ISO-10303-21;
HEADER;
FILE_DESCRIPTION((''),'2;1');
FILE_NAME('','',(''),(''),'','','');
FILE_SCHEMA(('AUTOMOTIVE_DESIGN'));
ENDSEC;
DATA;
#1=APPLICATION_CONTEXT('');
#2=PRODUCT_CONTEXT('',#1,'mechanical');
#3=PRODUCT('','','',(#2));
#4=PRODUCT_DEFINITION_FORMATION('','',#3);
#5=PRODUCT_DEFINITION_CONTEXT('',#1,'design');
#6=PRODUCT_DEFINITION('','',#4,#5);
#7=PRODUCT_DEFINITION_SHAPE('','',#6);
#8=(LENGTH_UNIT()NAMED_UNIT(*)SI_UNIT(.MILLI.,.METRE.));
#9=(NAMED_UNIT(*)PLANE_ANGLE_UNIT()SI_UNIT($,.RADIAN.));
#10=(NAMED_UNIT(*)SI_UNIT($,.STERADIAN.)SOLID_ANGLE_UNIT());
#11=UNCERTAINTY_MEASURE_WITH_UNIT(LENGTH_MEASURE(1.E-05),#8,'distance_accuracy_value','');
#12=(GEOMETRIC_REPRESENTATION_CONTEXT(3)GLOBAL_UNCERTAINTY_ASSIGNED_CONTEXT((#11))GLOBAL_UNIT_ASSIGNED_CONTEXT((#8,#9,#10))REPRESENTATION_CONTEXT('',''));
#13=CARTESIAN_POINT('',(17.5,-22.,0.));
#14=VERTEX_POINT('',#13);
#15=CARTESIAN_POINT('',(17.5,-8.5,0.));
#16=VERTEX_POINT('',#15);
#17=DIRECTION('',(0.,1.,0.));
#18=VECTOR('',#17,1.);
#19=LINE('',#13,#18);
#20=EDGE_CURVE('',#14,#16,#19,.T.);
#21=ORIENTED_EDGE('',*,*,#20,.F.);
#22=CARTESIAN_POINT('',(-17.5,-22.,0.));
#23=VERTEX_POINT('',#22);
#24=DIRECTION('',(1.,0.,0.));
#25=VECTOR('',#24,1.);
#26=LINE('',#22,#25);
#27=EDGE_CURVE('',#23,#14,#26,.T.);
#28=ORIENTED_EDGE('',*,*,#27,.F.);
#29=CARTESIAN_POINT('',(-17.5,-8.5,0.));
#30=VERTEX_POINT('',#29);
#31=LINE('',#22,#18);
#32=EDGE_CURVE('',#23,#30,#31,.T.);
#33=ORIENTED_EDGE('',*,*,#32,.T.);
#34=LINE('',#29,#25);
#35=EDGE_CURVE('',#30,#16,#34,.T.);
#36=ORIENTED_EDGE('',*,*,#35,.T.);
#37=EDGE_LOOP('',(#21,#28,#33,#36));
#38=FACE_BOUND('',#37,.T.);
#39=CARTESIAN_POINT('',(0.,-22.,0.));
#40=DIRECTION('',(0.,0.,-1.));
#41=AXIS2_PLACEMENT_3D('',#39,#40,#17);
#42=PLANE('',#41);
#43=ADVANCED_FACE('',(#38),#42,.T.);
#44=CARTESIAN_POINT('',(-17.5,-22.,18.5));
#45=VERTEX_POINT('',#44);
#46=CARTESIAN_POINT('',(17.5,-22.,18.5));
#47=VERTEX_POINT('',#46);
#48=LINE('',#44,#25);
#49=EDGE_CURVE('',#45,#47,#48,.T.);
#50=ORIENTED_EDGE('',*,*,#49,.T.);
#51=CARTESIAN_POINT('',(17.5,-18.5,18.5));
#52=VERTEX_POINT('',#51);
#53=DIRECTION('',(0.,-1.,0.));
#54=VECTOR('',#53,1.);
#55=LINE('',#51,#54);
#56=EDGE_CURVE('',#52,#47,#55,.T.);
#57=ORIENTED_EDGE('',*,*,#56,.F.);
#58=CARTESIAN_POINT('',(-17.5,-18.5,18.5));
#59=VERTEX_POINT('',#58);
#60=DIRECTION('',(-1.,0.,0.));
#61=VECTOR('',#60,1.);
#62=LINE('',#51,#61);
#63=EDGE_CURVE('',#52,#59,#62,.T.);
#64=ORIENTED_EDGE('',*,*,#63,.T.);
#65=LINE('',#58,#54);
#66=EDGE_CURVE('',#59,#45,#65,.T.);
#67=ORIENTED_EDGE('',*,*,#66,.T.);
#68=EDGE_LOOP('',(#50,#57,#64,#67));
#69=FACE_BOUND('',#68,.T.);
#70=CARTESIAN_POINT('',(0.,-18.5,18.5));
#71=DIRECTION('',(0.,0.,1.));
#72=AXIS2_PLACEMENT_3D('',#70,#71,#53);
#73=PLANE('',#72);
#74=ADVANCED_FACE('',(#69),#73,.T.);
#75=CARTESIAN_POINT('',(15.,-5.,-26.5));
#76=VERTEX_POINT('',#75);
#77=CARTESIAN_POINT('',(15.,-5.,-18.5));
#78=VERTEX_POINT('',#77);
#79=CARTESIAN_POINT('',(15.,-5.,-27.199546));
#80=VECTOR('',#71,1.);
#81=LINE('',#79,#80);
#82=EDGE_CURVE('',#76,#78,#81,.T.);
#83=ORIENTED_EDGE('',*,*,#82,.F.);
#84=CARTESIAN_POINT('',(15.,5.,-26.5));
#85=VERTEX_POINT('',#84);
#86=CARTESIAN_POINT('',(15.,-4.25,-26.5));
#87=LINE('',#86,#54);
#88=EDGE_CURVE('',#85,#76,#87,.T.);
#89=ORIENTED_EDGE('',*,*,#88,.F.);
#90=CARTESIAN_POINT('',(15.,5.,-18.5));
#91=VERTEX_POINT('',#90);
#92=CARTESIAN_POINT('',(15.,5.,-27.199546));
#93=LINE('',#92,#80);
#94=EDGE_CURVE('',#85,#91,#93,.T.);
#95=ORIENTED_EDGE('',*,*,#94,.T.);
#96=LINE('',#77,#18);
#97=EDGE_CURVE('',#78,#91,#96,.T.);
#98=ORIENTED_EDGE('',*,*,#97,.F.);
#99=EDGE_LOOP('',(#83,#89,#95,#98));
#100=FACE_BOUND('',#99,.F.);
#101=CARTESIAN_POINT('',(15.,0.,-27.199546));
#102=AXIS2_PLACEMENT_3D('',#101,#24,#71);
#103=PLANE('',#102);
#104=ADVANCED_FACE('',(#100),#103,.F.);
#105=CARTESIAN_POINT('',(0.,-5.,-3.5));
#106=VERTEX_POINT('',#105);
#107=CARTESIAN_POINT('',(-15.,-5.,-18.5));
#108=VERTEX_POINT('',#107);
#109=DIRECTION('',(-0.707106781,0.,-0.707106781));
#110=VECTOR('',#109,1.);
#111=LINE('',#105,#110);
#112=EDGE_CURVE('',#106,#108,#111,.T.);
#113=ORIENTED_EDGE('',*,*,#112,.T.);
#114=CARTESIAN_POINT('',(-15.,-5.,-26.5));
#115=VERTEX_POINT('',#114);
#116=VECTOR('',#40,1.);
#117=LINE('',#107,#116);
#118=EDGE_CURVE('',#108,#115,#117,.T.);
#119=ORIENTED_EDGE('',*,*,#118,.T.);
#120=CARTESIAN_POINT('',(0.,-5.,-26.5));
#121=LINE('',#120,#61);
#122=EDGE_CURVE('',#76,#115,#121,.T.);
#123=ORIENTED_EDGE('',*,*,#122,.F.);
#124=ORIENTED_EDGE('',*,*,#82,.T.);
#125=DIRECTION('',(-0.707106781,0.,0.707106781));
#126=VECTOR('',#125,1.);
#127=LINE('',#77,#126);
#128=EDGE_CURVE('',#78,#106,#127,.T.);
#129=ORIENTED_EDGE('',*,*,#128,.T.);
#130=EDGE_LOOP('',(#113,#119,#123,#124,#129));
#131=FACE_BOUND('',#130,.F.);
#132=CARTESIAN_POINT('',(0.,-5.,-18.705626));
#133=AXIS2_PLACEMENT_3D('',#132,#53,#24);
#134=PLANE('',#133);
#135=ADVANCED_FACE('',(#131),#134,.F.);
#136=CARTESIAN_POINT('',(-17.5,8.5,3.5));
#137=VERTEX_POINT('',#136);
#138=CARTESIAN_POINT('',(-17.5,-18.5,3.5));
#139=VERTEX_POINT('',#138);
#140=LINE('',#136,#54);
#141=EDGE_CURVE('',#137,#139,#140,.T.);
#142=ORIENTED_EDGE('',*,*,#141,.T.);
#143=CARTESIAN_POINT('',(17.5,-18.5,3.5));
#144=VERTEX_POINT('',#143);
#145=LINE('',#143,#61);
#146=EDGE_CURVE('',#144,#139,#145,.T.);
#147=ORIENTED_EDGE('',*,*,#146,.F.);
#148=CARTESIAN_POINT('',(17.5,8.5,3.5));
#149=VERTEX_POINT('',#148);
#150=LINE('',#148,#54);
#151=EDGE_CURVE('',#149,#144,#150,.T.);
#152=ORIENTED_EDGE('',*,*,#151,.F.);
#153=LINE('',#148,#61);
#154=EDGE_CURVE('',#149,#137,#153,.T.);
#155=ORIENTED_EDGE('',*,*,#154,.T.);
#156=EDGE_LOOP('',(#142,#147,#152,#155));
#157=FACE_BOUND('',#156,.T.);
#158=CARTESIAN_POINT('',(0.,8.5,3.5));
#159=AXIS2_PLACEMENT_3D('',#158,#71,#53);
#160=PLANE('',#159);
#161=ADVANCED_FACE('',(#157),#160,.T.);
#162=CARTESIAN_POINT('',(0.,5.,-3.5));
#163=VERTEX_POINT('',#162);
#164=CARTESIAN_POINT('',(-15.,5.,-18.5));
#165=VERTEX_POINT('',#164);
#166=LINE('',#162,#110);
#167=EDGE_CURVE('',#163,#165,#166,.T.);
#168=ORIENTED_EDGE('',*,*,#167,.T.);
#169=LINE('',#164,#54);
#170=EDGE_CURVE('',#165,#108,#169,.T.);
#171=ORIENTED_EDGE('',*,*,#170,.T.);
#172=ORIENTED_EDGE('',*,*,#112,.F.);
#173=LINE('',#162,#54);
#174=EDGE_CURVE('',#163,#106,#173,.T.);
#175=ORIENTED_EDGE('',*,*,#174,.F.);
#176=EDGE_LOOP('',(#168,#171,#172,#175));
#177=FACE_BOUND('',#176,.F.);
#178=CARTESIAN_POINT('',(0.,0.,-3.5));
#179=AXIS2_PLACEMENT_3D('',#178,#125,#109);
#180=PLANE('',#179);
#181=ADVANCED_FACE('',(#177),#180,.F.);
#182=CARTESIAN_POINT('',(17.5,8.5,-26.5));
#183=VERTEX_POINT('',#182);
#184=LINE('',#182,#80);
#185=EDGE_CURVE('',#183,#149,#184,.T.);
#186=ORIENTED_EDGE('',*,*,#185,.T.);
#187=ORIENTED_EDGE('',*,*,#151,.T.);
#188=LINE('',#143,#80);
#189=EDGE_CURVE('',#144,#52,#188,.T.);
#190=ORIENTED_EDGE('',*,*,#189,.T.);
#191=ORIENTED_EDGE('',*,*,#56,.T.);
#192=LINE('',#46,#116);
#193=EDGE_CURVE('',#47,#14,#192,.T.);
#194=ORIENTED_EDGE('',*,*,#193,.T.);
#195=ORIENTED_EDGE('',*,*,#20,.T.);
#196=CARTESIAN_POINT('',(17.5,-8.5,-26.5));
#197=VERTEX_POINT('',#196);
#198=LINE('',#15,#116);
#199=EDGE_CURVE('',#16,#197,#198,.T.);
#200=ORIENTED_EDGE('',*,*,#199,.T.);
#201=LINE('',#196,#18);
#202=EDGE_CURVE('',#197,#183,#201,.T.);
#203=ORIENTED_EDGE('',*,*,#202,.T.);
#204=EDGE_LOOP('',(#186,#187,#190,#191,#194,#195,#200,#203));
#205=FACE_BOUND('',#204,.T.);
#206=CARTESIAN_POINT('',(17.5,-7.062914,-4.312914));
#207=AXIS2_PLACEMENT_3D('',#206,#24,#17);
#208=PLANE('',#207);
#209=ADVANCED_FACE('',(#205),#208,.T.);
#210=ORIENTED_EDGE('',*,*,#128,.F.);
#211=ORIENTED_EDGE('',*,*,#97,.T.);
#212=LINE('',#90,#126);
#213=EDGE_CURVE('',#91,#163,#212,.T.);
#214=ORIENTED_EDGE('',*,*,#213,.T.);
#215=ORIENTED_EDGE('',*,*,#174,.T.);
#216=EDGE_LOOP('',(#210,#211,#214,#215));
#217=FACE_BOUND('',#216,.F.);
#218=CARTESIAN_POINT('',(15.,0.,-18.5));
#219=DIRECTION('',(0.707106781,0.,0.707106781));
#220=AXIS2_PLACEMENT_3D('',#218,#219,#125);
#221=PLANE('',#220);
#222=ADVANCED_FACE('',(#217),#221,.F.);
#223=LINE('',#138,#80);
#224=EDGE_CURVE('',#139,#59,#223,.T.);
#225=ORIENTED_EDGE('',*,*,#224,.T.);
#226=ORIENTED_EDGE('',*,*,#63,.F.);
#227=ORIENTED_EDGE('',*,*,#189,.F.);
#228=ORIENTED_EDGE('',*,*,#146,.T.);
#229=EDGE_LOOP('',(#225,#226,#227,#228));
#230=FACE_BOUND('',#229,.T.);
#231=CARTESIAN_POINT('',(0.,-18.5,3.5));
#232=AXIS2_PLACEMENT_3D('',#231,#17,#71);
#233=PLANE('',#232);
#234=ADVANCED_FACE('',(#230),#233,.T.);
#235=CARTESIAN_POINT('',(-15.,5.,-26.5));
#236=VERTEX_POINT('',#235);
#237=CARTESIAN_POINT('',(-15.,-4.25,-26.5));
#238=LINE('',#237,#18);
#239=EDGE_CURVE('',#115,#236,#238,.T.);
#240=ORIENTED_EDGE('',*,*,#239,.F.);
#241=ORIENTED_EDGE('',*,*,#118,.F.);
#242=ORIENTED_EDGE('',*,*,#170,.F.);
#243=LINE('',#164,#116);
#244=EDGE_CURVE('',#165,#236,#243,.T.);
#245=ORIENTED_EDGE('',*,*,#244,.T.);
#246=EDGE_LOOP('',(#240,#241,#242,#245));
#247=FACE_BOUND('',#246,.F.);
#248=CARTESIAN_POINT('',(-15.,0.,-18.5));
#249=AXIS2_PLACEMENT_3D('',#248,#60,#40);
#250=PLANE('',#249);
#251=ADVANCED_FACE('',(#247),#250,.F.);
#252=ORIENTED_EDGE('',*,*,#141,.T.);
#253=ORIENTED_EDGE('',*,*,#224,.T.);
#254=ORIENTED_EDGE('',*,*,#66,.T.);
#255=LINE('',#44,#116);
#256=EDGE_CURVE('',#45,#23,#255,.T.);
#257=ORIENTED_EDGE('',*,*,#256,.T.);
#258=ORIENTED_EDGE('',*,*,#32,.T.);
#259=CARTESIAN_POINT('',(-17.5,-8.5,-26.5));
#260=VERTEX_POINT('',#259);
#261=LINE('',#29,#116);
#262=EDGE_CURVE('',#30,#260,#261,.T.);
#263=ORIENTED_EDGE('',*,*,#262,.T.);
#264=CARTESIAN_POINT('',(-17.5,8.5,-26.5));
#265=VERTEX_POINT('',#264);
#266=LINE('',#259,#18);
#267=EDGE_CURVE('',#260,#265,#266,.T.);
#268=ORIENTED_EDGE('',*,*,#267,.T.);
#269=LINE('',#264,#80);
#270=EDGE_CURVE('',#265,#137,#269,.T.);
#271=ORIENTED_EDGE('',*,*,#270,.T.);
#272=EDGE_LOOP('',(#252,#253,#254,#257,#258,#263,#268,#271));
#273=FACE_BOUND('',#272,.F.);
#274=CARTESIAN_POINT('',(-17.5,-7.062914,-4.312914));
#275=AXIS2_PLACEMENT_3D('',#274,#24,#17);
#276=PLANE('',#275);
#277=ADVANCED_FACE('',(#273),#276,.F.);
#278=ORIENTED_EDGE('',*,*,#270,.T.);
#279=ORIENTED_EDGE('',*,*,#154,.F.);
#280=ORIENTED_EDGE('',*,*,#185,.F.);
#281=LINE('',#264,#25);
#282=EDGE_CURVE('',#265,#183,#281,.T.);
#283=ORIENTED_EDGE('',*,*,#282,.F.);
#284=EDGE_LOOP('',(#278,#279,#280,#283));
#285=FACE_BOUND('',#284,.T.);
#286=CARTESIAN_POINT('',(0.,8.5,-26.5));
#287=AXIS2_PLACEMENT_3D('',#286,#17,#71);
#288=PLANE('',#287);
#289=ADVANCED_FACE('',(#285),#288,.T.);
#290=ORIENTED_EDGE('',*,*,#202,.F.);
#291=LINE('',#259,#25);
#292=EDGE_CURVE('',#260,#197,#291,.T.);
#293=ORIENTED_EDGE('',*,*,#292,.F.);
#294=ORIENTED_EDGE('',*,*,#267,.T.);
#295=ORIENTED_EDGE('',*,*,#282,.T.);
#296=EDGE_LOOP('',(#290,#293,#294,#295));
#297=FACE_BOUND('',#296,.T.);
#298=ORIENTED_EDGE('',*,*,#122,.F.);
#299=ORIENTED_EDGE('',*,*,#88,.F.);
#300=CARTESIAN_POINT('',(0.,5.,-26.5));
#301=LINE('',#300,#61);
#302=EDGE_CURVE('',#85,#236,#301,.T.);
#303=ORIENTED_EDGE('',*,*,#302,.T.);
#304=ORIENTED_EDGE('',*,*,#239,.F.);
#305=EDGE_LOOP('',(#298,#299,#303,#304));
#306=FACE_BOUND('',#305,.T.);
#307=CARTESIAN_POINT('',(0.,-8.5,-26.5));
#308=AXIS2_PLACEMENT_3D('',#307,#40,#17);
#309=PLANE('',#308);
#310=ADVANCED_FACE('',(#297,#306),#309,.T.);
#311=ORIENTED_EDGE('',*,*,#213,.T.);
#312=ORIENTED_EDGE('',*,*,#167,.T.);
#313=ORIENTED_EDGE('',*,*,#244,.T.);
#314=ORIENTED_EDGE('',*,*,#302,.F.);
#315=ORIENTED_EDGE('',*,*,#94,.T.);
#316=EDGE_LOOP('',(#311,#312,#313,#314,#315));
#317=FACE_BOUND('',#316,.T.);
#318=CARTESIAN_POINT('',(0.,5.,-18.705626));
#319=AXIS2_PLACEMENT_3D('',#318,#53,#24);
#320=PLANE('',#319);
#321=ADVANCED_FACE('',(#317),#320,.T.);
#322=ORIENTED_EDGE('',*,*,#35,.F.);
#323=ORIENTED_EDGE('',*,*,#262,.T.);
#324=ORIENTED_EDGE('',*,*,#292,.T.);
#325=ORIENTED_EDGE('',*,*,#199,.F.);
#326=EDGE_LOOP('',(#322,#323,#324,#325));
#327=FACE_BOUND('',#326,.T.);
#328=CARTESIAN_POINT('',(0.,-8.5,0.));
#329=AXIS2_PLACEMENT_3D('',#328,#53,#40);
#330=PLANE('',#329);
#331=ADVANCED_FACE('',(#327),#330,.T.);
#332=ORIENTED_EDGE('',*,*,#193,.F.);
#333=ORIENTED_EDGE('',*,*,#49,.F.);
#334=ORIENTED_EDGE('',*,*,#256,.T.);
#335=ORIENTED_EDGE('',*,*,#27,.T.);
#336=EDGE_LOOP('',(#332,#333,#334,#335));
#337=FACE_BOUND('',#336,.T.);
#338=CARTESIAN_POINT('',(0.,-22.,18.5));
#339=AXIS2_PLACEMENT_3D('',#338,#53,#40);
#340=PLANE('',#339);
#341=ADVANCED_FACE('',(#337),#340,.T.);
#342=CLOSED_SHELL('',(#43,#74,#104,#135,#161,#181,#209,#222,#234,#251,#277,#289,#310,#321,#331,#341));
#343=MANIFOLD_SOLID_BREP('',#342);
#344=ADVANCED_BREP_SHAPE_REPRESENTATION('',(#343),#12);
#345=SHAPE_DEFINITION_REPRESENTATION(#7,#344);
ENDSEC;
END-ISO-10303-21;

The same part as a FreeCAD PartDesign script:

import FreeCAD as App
import Part
import Sketcher

V = App.Vector
Q = App.Units.Quantity

doc = App.newDocument("Part")
params = doc.addObject("Spreadsheet::Sheet", "Params")
for row, (alias, value) in enumerate([
    ("sketch1_width", "17 mm"),
    ("sketch1_width2", "27 mm"),
    ("sketch1_height", "30 mm"),
    ("sketch1_height2", "15 mm"),
    ("sketch1_width3", "3.5 mm"),
    ("pad1_length", "35 mm"),
    ("sketch2_width", "30 mm"),
    ("pocket1_length", "10 mm"),
], start=1):
    params.set(f"A{row}", alias)
    params.set(f"B{row}", "=" + value)
    params.setAlias(f"B{row}", alias)

body = doc.addObject("PartDesign::Body", "Body")

sketch1 = doc.addObject("Sketcher::SketchObject", "Sketch")
body.addObject(sketch1)
sketch1.AttachmentSupport = (doc.YZ_Plane, [""])
sketch1.MapMode = "FlatFace"
sketch1.addGeometry([
    Part.LineSegment(V(-18.5, 18.5, 0), V(-22, 18.5, 0)),
    Part.LineSegment(V(-22, 18.5, 0), V(-22, 0, 0)),
    Part.LineSegment(V(-22, 0, 0), V(-8.5, 0, 0)),
    Part.LineSegment(V(-8.5, 0, 0), V(-8.5, -26.5, 0)),
    Part.LineSegment(V(-8.5, -26.5, 0), V(8.5, -26.5, 0)),
    Part.LineSegment(V(8.5, -26.5, 0), V(8.5, 3.5, 0)),
    Part.LineSegment(V(8.5, 3.5, 0), V(-18.5, 3.5, 0)),
    Part.LineSegment(V(-18.5, 3.5, 0), V(-18.5, 18.5, 0)),
], False)
sketch1.addConstraint([
    Sketcher.Constraint("Coincident", 0, 2, 1, 1),
    Sketcher.Constraint("Coincident", 1, 2, 2, 1),
    Sketcher.Constraint("Coincident", 2, 2, 3, 1),
    Sketcher.Constraint("Coincident", 3, 2, 4, 1),
    Sketcher.Constraint("Coincident", 4, 2, 5, 1),
    Sketcher.Constraint("Coincident", 5, 2, 6, 1),
    Sketcher.Constraint("Coincident", 6, 2, 7, 1),
    Sketcher.Constraint("Coincident", 7, 2, 0, 1),
    Sketcher.Constraint("Horizontal", 0),
    Sketcher.Constraint("Vertical", 1),
    Sketcher.Constraint("Horizontal", 2),
    Sketcher.Constraint("Vertical", 3),
    Sketcher.Constraint("Horizontal", 4),
    Sketcher.Constraint("Vertical", 5),
    Sketcher.Constraint("Horizontal", 6),
    Sketcher.Constraint("Vertical", 7),
    Sketcher.Constraint("PointOnObject", 1, 2, -1),
    Sketcher.Constraint("DistanceX", 4, 1, 4, 2, Q("17 mm")),
    Sketcher.Constraint("DistanceX", 6, 2, 6, 1, Q("27 mm")),
    Sketcher.Constraint("DistanceY", 5, 1, 5, 2, Q("30 mm")),
    Sketcher.Constraint("DistanceY", 7, 1, 7, 2, Q("15 mm")),
    Sketcher.Constraint("DistanceX", 0, 2, 0, 1, Q("3.5 mm")),
    Sketcher.Constraint("DistanceY", 1, 2, 1, 1, Q("18.5 mm")),
    Sketcher.Constraint("DistanceX", 0, 2, -1, 1, Q("22 mm")),
])
sketch1.setExpression("Constraints[17]", "Params.sketch1_width")
sketch1.setExpression("Constraints[18]", "Params.sketch1_width2")
sketch1.setExpression("Constraints[19]", "Params.sketch1_height")
sketch1.setExpression("Constraints[20]", "Params.sketch1_height2")
sketch1.setExpression("Constraints[21]", "Params.sketch1_width3")
pad1 = doc.addObject("PartDesign::Pad", "Pad")
body.addObject(pad1)
pad1.Profile = sketch1
pad1.setExpression("Length", "Params.pad1_length")
pad1.Midplane = True

sketch2 = doc.addObject("Sketcher::SketchObject", "Sketch001")
body.addObject(sketch2)
sketch2.AttachmentSupport = (doc.XZ_Plane, [""])
sketch2.MapMode = "FlatFace"
sketch2.addGeometry([
    Part.LineSegment(V(15, -18, 0), V(0, -4, 0)),
    Part.LineSegment(V(0, -4, 0), V(-15, -18, 0)),
    Part.LineSegment(V(-15, -18, 0), V(-15, -27, 0)),
    Part.LineSegment(V(-15, -27, 0), V(15, -27, 0)),
    Part.LineSegment(V(15, -27, 0), V(15, -18, 0)),
], False)
sketch2.addConstraint([
    Sketcher.Constraint("Coincident", 0, 2, 1, 1),
    Sketcher.Constraint("Coincident", 1, 2, 2, 1),
    Sketcher.Constraint("Coincident", 2, 2, 3, 1),
    Sketcher.Constraint("Coincident", 3, 2, 4, 1),
    Sketcher.Constraint("Coincident", 4, 2, 0, 1),
    Sketcher.Constraint("Vertical", 2),
    Sketcher.Constraint("Horizontal", 3),
    Sketcher.Constraint("Vertical", 4),
    Sketcher.Constraint("Symmetric", 1, 2, 4, 2, -2),
    Sketcher.Constraint("PointOnObject", 0, 2, -2),
    Sketcher.Constraint("Perpendicular", 0, 1),
    Sketcher.Constraint("DistanceX", 3, 1, 3, 2, Q("30 mm")),
    Sketcher.Constraint("DistanceY", 0, 2, -1, 1, Q("3.5 mm")),
    Sketcher.Constraint("DistanceY", 2, 2, 2, 1, Q("8.699546 mm")),
])
sketch2.setExpression("Constraints[11]", "Params.sketch2_width")
pocket1 = doc.addObject("PartDesign::Pocket", "Pocket")
body.addObject(pocket1)
pocket1.Profile = sketch2
pocket1.setExpression("Length", "Params.pocket1_length")
pocket1.Midplane = True

doc.recompute()
